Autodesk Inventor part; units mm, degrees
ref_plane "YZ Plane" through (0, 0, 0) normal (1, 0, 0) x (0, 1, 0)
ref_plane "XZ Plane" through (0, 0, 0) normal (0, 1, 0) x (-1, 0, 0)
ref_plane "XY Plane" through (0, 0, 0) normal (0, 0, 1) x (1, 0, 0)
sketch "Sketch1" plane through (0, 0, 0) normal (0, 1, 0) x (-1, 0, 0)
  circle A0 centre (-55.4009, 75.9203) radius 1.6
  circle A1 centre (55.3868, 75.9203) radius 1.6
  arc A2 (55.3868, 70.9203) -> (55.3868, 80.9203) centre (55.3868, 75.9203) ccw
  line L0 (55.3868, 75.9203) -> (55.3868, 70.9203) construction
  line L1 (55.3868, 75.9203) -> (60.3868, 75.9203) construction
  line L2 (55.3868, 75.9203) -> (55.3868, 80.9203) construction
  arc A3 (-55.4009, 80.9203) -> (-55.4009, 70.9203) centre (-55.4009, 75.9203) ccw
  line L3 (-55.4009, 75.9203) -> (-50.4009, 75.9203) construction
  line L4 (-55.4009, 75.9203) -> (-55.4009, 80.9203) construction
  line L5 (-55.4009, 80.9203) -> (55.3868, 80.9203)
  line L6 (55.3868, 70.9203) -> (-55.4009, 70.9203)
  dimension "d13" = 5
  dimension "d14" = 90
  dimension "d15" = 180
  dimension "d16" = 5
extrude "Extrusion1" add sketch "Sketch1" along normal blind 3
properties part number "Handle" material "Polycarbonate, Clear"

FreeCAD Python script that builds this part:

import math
import FreeCAD as App
import Part
import Sketcher

V = App.Vector

doc = App.newDocument("Part")
params = doc.addObject("Spreadsheet::Sheet", "Params")
for row, (alias, value) in enumerate([
    ("sketch1_radius", "5 mm"),
    ("sketch1_diameter", "3.2 mm"),
    ("pad1_length", "3 mm"),
], start=1):
    params.set(f"A{row}", alias)
    params.set(f"B{row}", "=" + value)
    params.setAlias(f"B{row}", alias)

body = doc.addObject("PartDesign::Body", "Body")

# Sketch on XZ plane
sketch1 = body.newObject("Sketcher::SketchObject", "Sketch")
sketch1.AttachmentSupport = (doc.getObject("XZ_Plane"), [""])
sketch1.MapMode = "FlatFace"
sketch1.addGeometry([
    Part.LineSegment(V(55.4, 70.9, 0), V(-55.4, 70.9, 0)),  # 0
    Part.ArcOfCircle(Part.Circle(V(-55.4, 75.9, 0), V(0, 0, 1), 5), math.radians(90), math.radians(270)),  # 1
    Part.LineSegment(V(-55.4, 80.9, 0), V(55.4, 80.9, 0)),  # 2
    Part.ArcOfCircle(Part.Circle(V(55.4, 75.9, 0), V(0, 0, 1), 5), math.radians(-90), math.radians(90)),  # 3
    Part.Circle(V(55.4, 75.9, 0), V(0, 0, 1), 1.6),  # 4
    Part.Circle(V(-55.4, 75.9, 0), V(0, 0, 1), 1.6),  # 5
], False)
sketch1.addConstraint([
    Sketcher.Constraint("Tangent", 0, 2, 1, 2),
    Sketcher.Constraint("Tangent", 1, 1, 2, 1),
    Sketcher.Constraint("Tangent", 2, 2, 3, 2),
    Sketcher.Constraint("Tangent", 3, 1, 0, 1),
    Sketcher.Constraint("Horizontal", 0),
    Sketcher.Constraint("Horizontal", 2),
    Sketcher.Constraint("Coincident", 4, 3, 3, 3),
    Sketcher.Constraint("Coincident", 5, 3, 1, 3),
    Sketcher.Constraint("Equal", 4, 5),
    Sketcher.Constraint("Radius", 1, 5.0),
    Sketcher.Constraint("Diameter", 4, 3.2),
    Sketcher.Constraint("DistanceX", 0, 2, 0, 1, 110.7877),
    Sketcher.Constraint("DistanceX", -1, 1, 3, 3, 55.401),
    Sketcher.Constraint("DistanceY", -1, 1, 1, 3, 75.9203),
])
sketch1.setExpression("Constraints[9]", "Params.sketch1_radius")
sketch1.setExpression("Constraints[10]", "Params.sketch1_diameter")
pad1 = body.newObject("PartDesign::Pad", "Pad")
pad1.Profile = sketch1
pad1.setExpression("Length", "Params.pad1_length")
pad1.Reversed = True

doc.recompute()
